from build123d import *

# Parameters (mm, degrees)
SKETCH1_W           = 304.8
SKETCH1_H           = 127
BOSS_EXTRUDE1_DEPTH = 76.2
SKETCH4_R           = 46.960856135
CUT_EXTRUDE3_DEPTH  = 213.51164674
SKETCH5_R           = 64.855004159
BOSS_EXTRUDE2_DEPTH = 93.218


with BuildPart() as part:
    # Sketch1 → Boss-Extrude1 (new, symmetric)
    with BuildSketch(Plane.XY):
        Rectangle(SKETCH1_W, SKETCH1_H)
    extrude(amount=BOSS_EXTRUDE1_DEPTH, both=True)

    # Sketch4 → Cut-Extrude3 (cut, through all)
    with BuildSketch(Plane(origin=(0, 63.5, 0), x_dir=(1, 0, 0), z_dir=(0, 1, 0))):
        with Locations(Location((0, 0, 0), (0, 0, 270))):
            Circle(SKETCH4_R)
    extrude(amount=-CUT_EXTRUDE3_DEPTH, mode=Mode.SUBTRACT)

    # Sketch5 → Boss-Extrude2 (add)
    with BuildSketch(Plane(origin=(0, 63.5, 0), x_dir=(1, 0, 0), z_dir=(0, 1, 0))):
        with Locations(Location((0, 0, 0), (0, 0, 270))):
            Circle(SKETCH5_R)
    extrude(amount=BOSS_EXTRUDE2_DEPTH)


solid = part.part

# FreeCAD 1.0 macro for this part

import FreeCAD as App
import Part
import Sketcher
Q = App.Units.Quantity

doc = App.newDocument("Part")
body = doc.addObject("PartDesign::Body", "Body")

# Sketch on XY plane
sketch1 = doc.addObject("Sketcher::SketchObject", "Sketch")
body.addObject(sketch1)
sketch1.AttachmentSupport = (doc.XY_Plane, [""])
sketch1.MapMode = "FlatFace"
sketch1.addGeometry(Part.LineSegment(App.Vector(-152, 64, 0), App.Vector(-152, -64, 0)), False)
sketch1.addGeometry(Part.LineSegment(App.Vector(-152, -64, 0), App.Vector(152, -64, 0)), False)
sketch1.addGeometry(Part.LineSegment(App.Vector(152, -64, 0), App.Vector(152, 64, 0)), False)
sketch1.addGeometry(Part.LineSegment(App.Vector(152, 64, 0), App.Vector(-152, 64, 0)), False)
sketch1.addConstraint(Sketcher.Constraint("Coincident", 0, 2, 1, 1))
sketch1.addConstraint(Sketcher.Constraint("Coincident", 1, 2, 2, 1))
sketch1.addConstraint(Sketcher.Constraint("Coincident", 2, 2, 3, 1))
sketch1.addConstraint(Sketcher.Constraint("Coincident", 3, 2, 0, 1))
sketch1.addConstraint(Sketcher.Constraint("Vertical", 0))
sketch1.addConstraint(Sketcher.Constraint("Horizontal", 1))
sketch1.addConstraint(Sketcher.Constraint("Vertical", 2))
sketch1.addConstraint(Sketcher.Constraint("Horizontal", 3))
sketch1.addConstraint(Sketcher.Constraint("Symmetric", 0, 2, 2, 2, -1, 1))
sketch1.addConstraint(Sketcher.Constraint("DistanceX", 1, 1, 1, 2, Q("12 in")))
sketch1.addConstraint(Sketcher.Constraint("DistanceY", 0, 2, 0, 1, Q("5 in")))
pad1 = doc.addObject("PartDesign::Pad", "Pad")
body.addObject(pad1)
pad1.Profile = sketch1
pad1.Length = Q("6 in")
pad1.Midplane = True

# Sketch on XZ plane
sketch2 = doc.addObject("Sketcher::SketchObject", "Sketch001")
body.addObject(sketch2)
sketch2.AttachmentSupport = (doc.XZ_Plane, [""])
sketch2.MapMode = "FlatFace"
sketch2.AttachmentOffset = App.Placement(App.Vector(0, 0, -2.5 * 25.4), App.Rotation())
sketch2.addGeometry(Part.Circle(App.Vector(0, 0, 0), App.Vector(0, 0, 1), 47), False)
sketch2.addConstraint(Sketcher.Constraint("Coincident", 0, 3, -1, 1))
sketch2.addConstraint(Sketcher.Constraint("Diameter", 0, Q("93.921712 mm")))
pocket1 = doc.addObject("PartDesign::Pocket", "Pocket")
body.addObject(pocket1)
pocket1.Profile = sketch2
pocket1.Type = "ThroughAll"
pocket1.Reversed = True

# Sketch on XZ plane
sketch3 = doc.addObject("Sketcher::SketchObject", "Sketch002")
body.addObject(sketch3)
sketch3.AttachmentSupport = (doc.XZ_Plane, [""])
sketch3.MapMode = "FlatFace"
sketch3.AttachmentOffset = App.Placement(App.Vector(0, 0, -2.5 * 25.4), App.Rotation())
sketch3.addGeometry(Part.Circle(App.Vector(0, 0, 0), App.Vector(0, 0, 1), 65), False)
sketch3.addConstraint(Sketcher.Constraint("Coincident", 0, 3, -1, 1))
sketch3.addConstraint(Sketcher.Constraint("Diameter", 0, Q("129.710008 mm")))
pad2 = doc.addObject("PartDesign::Pad", "Pad001")
body.addObject(pad2)
pad2.Profile = sketch3
pad2.Length = Q("3.67 in")
pad2.Reversed = True

doc.recompute()
